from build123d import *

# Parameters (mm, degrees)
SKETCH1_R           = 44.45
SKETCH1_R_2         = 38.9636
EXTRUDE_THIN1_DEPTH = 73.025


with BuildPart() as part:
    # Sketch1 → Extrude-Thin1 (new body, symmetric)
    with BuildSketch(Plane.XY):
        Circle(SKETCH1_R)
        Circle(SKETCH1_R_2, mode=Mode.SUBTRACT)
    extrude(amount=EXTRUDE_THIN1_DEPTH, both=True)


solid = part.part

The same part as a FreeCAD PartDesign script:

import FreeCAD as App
import Part
import Sketcher
from FreeCAD import Vector
Q = App.Units.Quantity

doc = App.newDocument("Part")
body = doc.addObject("PartDesign::Body", "Body")

sketch1 = body.newObject("Sketcher::SketchObject", "Sketch")
sketch1.AttachmentSupport = (doc.getObject("XY_Plane"), [""])
sketch1.MapMode = "FlatFace"
sketch1.addGeometry(Part.Circle(Vector(0, 0, 0), Vector(0, 0, 1), 44), False)
sketch1.addGeometry(Part.Circle(Vector(0, 0, 0), Vector(0, 0, 1), 39), False)
sketch1.addConstraint(Sketcher.Constraint("Coincident", 0, 3, -1, 1))
sketch1.addConstraint(Sketcher.Constraint("Coincident", 1, 3, -1, 1))
sketch1.addConstraint(Sketcher.Constraint("Diameter", 0, Q("3.5 in")))
sketch1.addConstraint(Sketcher.Constraint("Diameter", 1, Q("3.068 in")))
pad1 = body.newObject("PartDesign::Pad", "Pad")
pad1.Profile = sketch1
pad1.Length = Q("5.75 in")
pad1.Midplane = True

doc.recompute()
